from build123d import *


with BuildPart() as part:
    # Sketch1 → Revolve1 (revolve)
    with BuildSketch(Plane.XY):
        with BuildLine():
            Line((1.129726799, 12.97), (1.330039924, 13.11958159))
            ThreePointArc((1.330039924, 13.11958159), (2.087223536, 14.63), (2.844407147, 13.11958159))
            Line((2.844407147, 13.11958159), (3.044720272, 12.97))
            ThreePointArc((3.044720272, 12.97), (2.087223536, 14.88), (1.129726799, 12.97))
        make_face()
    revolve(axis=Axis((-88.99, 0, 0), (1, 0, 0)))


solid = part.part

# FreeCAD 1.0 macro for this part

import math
import FreeCAD as App
import Part
import Sketcher

V = App.Vector
Q = App.Units.Quantity

doc = App.newDocument("Part")
body = doc.addObject("PartDesign::Body", "Body")

# Sketch on XY plane
sketch1 = doc.addObject("Sketcher::SketchObject", "Sketch")
body.addObject(sketch1)
sketch1.AttachmentSupport = (doc.XY_Plane, [""])
sketch1.MapMode = "FlatFace"
sketch1.addGeometry([
    Part.LineSegment(V(1.13, 12.97, 0), V(1.33, 13.12, 0)),
    Part.ArcOfCircle(Part.Circle(V(2.09, 13.69, 0), V(0, 0, 1), 0.94), math.radians(-37), math.radians(217)),
    Part.LineSegment(V(2.84, 13.12, 0), V(3.04, 12.97, 0)),
    Part.ArcOfCircle(Part.Circle(V(2.09, 13.69, 0), V(0, 0, 1), 1.2), math.radians(-37), math.radians(217)),
], False)
sketch1.addConstraint([
    Sketcher.Constraint("Coincident", 0, 2, 1, 2),
    Sketcher.Constraint("Coincident", 1, 1, 2, 1),
    Sketcher.Constraint("Coincident", 2, 2, 3, 1),
    Sketcher.Constraint("Coincident", 3, 2, 0, 1),
    Sketcher.Constraint("Coincident", 3, 3, 1, 3),
    Sketcher.Constraint("Horizontal", 0, 2, 1, 1),
    Sketcher.Constraint("Horizontal", 2, 2, 3, 2),
    Sketcher.Constraint("Radius", 1, Q("0.945 mm")),
    Sketcher.Constraint("Radius", 3, Q("1.195 mm")),
    Sketcher.Constraint("DistanceY", -1, 1, 2, 2, Q("12.97 mm")),
    Sketcher.Constraint("DistanceY", -1, 1, 1, 3, Q("13.685 mm")),
    Sketcher.Constraint("DistanceX", -1, 1, 0, 2, Q("1.33004 mm")),
    Sketcher.Constraint("DistanceY", -1, 1, 0, 2, Q("13.119582 mm")),
])
revolution = doc.addObject("PartDesign::Revolution", "Revolution")
body.addObject(revolution)
revolution.Profile = sketch1
revolution.ReferenceAxis = (sketch1, ["H_Axis"])
revolution.Angle = 360

doc.recompute()
